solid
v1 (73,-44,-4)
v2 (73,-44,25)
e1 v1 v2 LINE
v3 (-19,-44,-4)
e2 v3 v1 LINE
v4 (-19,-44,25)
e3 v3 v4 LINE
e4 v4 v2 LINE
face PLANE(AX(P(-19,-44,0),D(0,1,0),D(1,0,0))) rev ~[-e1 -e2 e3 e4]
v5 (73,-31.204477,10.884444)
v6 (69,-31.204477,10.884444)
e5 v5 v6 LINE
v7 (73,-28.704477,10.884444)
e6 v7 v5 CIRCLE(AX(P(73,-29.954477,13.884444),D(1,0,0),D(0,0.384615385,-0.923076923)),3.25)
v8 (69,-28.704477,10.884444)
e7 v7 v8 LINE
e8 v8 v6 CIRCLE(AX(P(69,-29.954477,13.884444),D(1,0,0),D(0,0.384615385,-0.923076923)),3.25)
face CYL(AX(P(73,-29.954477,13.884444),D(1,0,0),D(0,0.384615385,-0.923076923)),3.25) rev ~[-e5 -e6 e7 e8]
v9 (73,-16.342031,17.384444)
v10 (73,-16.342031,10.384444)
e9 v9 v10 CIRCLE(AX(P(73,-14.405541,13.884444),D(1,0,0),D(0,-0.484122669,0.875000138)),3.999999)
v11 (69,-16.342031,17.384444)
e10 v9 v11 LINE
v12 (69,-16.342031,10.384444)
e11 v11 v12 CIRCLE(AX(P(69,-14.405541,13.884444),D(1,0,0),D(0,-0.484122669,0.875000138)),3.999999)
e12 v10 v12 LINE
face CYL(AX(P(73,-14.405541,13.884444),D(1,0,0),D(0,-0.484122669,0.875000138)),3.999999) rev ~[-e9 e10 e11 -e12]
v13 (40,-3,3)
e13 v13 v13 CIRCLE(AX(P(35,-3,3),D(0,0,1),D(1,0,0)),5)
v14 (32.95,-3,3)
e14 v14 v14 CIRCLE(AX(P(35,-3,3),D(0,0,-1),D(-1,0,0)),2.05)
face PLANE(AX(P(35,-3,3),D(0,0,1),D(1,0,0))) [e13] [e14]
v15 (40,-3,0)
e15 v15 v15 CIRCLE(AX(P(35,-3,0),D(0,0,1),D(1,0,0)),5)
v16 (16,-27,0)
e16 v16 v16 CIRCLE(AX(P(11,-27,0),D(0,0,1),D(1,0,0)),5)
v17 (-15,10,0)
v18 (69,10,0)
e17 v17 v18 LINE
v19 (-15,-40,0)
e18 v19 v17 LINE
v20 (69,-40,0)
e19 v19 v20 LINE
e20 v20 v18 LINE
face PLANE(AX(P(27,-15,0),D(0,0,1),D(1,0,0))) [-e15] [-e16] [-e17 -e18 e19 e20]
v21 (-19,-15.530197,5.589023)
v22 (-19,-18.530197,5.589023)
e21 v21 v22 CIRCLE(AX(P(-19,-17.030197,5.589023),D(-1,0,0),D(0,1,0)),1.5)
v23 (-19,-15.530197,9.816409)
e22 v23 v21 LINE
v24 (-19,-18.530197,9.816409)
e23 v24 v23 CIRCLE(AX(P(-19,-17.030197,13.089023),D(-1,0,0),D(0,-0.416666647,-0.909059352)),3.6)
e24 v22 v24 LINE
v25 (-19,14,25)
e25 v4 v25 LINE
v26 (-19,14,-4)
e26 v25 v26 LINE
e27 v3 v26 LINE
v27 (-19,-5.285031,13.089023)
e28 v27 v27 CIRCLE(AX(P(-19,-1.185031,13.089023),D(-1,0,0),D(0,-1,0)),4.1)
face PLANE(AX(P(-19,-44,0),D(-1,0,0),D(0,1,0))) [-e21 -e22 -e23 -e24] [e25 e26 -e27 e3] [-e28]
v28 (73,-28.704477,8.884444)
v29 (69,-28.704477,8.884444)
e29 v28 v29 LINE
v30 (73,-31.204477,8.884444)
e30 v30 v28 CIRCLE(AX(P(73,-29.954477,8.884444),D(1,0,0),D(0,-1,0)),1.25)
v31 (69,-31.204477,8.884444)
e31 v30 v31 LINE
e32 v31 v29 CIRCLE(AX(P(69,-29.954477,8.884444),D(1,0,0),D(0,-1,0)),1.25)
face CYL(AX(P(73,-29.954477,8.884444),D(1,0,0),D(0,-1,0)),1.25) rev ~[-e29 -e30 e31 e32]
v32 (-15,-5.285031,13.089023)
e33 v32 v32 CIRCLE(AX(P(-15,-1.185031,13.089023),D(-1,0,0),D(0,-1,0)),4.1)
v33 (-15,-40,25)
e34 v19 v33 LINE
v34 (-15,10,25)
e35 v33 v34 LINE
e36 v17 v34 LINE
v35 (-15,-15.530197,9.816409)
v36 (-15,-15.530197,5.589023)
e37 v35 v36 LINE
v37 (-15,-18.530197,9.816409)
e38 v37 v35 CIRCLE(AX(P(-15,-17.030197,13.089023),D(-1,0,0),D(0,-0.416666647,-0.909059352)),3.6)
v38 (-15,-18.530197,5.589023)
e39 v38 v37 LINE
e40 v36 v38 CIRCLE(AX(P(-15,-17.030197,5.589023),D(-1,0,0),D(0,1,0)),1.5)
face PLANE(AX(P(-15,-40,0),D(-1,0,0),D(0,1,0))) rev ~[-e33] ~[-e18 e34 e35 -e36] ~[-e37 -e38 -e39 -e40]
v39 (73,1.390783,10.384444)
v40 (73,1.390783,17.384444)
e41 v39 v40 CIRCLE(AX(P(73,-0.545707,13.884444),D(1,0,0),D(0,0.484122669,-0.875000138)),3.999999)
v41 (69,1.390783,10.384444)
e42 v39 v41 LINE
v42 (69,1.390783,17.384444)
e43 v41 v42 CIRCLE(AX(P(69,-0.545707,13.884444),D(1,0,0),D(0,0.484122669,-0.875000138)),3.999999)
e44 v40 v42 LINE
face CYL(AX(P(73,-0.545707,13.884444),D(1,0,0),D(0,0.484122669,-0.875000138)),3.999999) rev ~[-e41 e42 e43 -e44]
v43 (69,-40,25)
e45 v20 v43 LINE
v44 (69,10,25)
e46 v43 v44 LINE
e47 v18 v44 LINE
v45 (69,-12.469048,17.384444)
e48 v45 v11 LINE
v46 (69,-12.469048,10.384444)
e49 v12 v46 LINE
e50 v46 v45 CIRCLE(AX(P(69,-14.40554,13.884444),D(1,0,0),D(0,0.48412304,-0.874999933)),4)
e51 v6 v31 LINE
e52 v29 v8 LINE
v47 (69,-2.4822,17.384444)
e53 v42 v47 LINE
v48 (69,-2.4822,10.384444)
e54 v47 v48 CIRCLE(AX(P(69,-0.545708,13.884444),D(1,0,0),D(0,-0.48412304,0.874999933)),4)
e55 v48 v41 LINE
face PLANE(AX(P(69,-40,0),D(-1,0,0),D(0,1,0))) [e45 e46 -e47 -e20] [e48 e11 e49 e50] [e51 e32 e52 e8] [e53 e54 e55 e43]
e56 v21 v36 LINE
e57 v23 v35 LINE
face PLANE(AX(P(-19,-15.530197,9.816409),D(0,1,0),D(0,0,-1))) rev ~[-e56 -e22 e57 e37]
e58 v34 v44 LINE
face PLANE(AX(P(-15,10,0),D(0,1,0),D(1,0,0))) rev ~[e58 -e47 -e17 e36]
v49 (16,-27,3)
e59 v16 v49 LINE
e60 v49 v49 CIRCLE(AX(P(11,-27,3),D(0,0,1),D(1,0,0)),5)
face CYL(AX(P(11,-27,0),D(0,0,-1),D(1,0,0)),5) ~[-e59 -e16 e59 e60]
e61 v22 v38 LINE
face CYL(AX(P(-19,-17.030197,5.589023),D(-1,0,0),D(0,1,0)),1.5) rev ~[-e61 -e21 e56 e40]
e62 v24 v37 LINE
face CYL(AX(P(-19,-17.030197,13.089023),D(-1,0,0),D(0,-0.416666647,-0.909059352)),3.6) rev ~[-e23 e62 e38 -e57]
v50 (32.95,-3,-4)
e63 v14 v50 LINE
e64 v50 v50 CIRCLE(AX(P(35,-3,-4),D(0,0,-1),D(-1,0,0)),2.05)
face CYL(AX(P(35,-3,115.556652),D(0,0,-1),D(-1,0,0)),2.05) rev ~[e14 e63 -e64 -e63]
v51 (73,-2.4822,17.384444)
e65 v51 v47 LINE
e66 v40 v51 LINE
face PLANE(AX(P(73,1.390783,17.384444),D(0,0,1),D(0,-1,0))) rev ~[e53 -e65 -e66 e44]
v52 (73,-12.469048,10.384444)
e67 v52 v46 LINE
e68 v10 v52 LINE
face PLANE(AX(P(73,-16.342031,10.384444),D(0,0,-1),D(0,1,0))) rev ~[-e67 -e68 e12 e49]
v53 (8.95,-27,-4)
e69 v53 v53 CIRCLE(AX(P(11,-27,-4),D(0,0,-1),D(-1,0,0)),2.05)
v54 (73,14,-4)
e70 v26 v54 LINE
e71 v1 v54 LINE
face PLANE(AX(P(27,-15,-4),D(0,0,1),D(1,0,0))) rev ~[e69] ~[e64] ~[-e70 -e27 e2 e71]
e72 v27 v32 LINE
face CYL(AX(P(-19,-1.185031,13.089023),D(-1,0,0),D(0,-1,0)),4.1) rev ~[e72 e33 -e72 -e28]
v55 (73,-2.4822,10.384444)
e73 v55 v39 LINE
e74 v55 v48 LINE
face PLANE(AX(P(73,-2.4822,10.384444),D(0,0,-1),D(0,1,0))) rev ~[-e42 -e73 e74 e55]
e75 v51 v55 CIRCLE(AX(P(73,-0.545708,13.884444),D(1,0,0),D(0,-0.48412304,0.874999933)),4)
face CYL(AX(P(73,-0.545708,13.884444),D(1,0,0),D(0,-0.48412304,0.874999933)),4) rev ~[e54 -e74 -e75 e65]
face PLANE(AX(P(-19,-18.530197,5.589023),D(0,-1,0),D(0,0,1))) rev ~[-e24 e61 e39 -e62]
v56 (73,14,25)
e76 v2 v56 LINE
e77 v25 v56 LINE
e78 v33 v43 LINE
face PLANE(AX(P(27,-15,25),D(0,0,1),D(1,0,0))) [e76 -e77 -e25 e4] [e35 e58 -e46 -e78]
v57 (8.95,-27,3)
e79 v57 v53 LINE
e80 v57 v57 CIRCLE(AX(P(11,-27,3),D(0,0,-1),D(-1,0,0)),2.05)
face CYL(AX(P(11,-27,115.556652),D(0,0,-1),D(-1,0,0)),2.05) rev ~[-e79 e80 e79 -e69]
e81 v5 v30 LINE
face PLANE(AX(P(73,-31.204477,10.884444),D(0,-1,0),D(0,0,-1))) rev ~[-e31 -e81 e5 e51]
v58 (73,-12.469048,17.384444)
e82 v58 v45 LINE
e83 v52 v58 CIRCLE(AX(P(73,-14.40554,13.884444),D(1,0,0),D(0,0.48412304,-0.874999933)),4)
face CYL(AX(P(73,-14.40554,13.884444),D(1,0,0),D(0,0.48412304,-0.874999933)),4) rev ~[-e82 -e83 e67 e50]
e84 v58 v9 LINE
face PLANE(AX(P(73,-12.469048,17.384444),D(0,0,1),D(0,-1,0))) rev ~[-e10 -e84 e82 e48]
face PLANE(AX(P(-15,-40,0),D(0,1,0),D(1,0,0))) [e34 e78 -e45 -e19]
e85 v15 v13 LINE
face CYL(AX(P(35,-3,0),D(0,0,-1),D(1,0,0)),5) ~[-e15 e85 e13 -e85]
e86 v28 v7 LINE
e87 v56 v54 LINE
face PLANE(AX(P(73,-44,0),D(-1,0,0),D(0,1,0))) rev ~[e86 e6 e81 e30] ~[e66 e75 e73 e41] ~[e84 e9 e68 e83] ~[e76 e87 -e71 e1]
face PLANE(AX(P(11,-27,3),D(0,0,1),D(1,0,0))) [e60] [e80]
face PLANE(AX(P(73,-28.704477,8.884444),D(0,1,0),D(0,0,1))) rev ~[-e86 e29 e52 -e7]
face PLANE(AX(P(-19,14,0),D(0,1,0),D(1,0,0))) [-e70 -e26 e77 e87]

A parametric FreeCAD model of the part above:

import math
import FreeCAD as App
import Part
import Sketcher

V = App.Vector


def add_polygon(sketch, points):
    """Adds a closed chain of lines whose ends are joined by coincident constraints."""
    first, n = sketch.GeometryCount, len(points)
    for a, b in zip(points, points[1:] + points[:1]):
        sketch.addGeometry(Part.LineSegment(App.Vector(*a, 0), App.Vector(*b, 0)), False)
    for i in range(n):
        sketch.addConstraint(Sketcher.Constraint("Coincident", first + i, 2, first + (i + 1) % n, 1))

doc = App.newDocument("Part")
body = doc.addObject("PartDesign::Body", "Body")

sketch1 = body.newObject("Sketcher::SketchObject", "Sketch")
sketch1.AttachmentSupport = (doc.getObject("XY_Plane"), [""])
sketch1.MapMode = "FlatFace"
add_polygon(sketch1, [(-19, 14), (-19, -44), (73, -44), (73, 14)])
sketch1.addConstraint(Sketcher.Constraint("Vertical", 0))
sketch1.addConstraint(Sketcher.Constraint("Horizontal", 1))
sketch1.addConstraint(Sketcher.Constraint("Vertical", 2))
sketch1.addConstraint(Sketcher.Constraint("Horizontal", 3))
sketch1.addConstraint(Sketcher.Constraint("DistanceX", 1, 1, 1, 2, 92.0))
sketch1.addConstraint(Sketcher.Constraint("DistanceY", 0, 2, 0, 1, 58.0))
sketch1.addConstraint(Sketcher.Constraint("DistanceX", 0, 2, -1, 1, 19.0))
sketch1.addConstraint(Sketcher.Constraint("DistanceY", 0, 2, -1, 1, 44.0))
pad1 = body.newObject("PartDesign::Pad", "Pad")
pad1.Profile = sketch1
pad1.Length = 4
pad1.Reversed = True

sketch2 = body.newObject("Sketcher::SketchObject", "Sketch001")
sketch2.AttachmentSupport = (doc.getObject("XY_Plane"), [""])
sketch2.MapMode = "FlatFace"
add_polygon(sketch2, [(-19, 14), (-19, -44), (73, -44), (73, 14)])
add_polygon(sketch2, [(69, -40), (-15, -40), (-15, 10), (69, 10)])
sketch2.addConstraint(Sketcher.Constraint("Vertical", 0))
sketch2.addConstraint(Sketcher.Constraint("Horizontal", 1))
sketch2.addConstraint(Sketcher.Constraint("Vertical", 2))
sketch2.addConstraint(Sketcher.Constraint("Horizontal", 3))
sketch2.addConstraint(Sketcher.Constraint("Horizontal", 4))
sketch2.addConstraint(Sketcher.Constraint("Vertical", 5))
sketch2.addConstraint(Sketcher.Constraint("Horizontal", 6))
sketch2.addConstraint(Sketcher.Constraint("Vertical", 7))
sketch2.addConstraint(Sketcher.Constraint("DistanceX", 1, 1, 1, 2, 92.0))
sketch2.addConstraint(Sketcher.Constraint("DistanceX", 4, 2, 4, 1, 84.0))
sketch2.addConstraint(Sketcher.Constraint("DistanceY", 0, 2, 0, 1, 58.0))
sketch2.addConstraint(Sketcher.Constraint("DistanceY", 5, 1, 5, 2, 50.0))
sketch2.addConstraint(Sketcher.Constraint("DistanceX", 0, 2, -1, 1, 19.0))
sketch2.addConstraint(Sketcher.Constraint("DistanceY", 0, 2, -1, 1, 44.0))
sketch2.addConstraint(Sketcher.Constraint("DistanceX", 4, 2, -1, 1, 15.0))
sketch2.addConstraint(Sketcher.Constraint("DistanceY", 4, 2, -1, 1, 40.0))
pad2 = body.newObject("PartDesign::Pad", "Pad001")
pad2.Profile = sketch2
pad2.Length = 25

sketch3 = body.newObject("Sketcher::SketchObject", "Sketch002")
sketch3.AttachmentSupport = (doc.getObject("XY_Plane"), [""])
sketch3.MapMode = "FlatFace"
sketch3.addGeometry(Part.Circle(V(35, -3, 0), V(0, 0, 1), 5), False)
sketch3.addGeometry(Part.Circle(V(11, -27, 0), V(0, 0, 1), 5), False)
sketch3.addConstraint(Sketcher.Constraint("Equal", 0, 1))
sketch3.addConstraint(Sketcher.Constraint("Diameter", 0, 10.0))
sketch3.addConstraint(Sketcher.Constraint("DistanceX", -1, 1, 0, 3, 35.0))
sketch3.addConstraint(Sketcher.Constraint("DistanceY", 0, 3, -1, 1, 3.0))
sketch3.addConstraint(Sketcher.Constraint("DistanceX", -1, 1, 1, 3, 11.0))
sketch3.addConstraint(Sketcher.Constraint("DistanceY", 1, 3, -1, 1, 27.0))
pad3 = body.newObject("PartDesign::Pad", "Pad002")
pad3.Profile = sketch3
pad3.Length = 3

sketch4 = body.newObject("Sketcher::SketchObject", "Sketch003")
sketch4.AttachmentSupport = (doc.getObject("YZ_Plane"), [""])
sketch4.MapMode = "FlatFace"
sketch4.AttachmentOffset = App.Placement(V(0, 0, 73), App.Rotation())
sketch4.addGeometry(Part.LineSegment(V(-28.7, 8.9, 0), V(-28.7, 10.9, 0)), False)
sketch4.addGeometry(Part.ArcOfCircle(Part.Circle(V(-30, 13.9, 0), V(0, 0, 1), 3.2), math.radians(-67), math.radians(247)), False)
sketch4.addGeometry(Part.LineSegment(V(-31.2, 10.9, 0), V(-31.2, 8.9, 0)), False)
sketch4.addGeometry(Part.ArcOfCircle(Part.Circle(V(-30, 8.9, 0), V(0, 0, 1), 1.2), math.radians(180), math.radians(360)), False)
sketch4.addGeometry(Part.LineSegment(V(-12.5, 17.4, 0), V(-16.3, 17.4, 0)), False)
sketch4.addGeometry(Part.ArcOfCircle(Part.Circle(V(-14.4, 13.9, 0), V(0, 0, 1), 4), math.radians(119), math.radians(241)), False)
sketch4.addGeometry(Part.LineSegment(V(-16.3, 10.4, 0), V(-12.5, 10.4, 0)), False)
sketch4.addGeometry(Part.ArcOfCircle(Part.Circle(V(-14.4, 13.9, 0), V(0, 0, 1), 4), math.radians(-61), math.radians(61)), False)
sketch4.addGeometry(Part.LineSegment(V(-2.5, 10.4, 0), V(1.4, 10.4, 0)), False)
sketch4.addGeometry(Part.ArcOfCircle(Part.Circle(V(-0.5, 13.9, 0), V(0, 0, 1), 4), math.radians(-61), math.radians(61)), False)
sketch4.addGeometry(Part.LineSegment(V(1.4, 17.4, 0), V(-2.5, 17.4, 0)), False)
sketch4.addGeometry(Part.ArcOfCircle(Part.Circle(V(-0.5, 13.9, 0), V(0, 0, 1), 4), math.radians(119), math.radians(241)), False)
sketch4.addConstraint(Sketcher.Constraint("Coincident", 0, 2, 1, 1))
sketch4.addConstraint(Sketcher.Constraint("Coincident", 1, 2, 2, 1))
sketch4.addConstraint(Sketcher.Constraint("Tangent", 2, 2, 3, 1))
sketch4.addConstraint(Sketcher.Constraint("Tangent", 3, 2, 0, 1))
sketch4.addConstraint(Sketcher.Constraint("Coincident", 4, 2, 5, 1))
sketch4.addConstraint(Sketcher.Constraint("Coincident", 5, 2, 6, 1))
sketch4.addConstraint(Sketcher.Constraint("Coincident", 6, 2, 7, 1))
sketch4.addConstraint(Sketcher.Constraint("Coincident", 7, 2, 4, 1))
sketch4.addConstraint(Sketcher.Constraint("Coincident", 8, 2, 9, 1))
sketch4.addConstraint(Sketcher.Constraint("Coincident", 9, 2, 10, 1))
sketch4.addConstraint(Sketcher.Constraint("Coincident", 10, 2, 11, 1))
sketch4.addConstraint(Sketcher.Constraint("Coincident", 11, 2, 8, 1))
sketch4.addConstraint(Sketcher.Constraint("Vertical", 0))
sketch4.addConstraint(Sketcher.Constraint("Vertical", 2))
sketch4.addConstraint(Sketcher.Constraint("Horizontal", 4))
sketch4.addConstraint(Sketcher.Constraint("Horizontal", 6))
sketch4.addConstraint(Sketcher.Constraint("Horizontal", 8))
sketch4.addConstraint(Sketcher.Constraint("Horizontal", 10))
sketch4.addConstraint(Sketcher.Constraint("Coincident", 7, 3, 5, 3))
sketch4.addConstraint(Sketcher.Constraint("Coincident", 11, 3, 9, 3))
sketch4.addConstraint(Sketcher.Constraint("Equal", 5, 7))
sketch4.addConstraint(Sketcher.Constraint("Equal", 7, 9))
sketch4.addConstraint(Sketcher.Constraint("Equal", 9, 11))
sketch4.addConstraint(Sketcher.Constraint("Horizontal", 1, 3, 5, 3))
sketch4.addConstraint(Sketcher.Constraint("Horizontal", 7, 3, 9, 3))
sketch4.addConstraint(Sketcher.Constraint("Horizontal", 0, 2, 1, 2))
sketch4.addConstraint(Sketcher.Constraint("Horizontal", 6, 2, 8, 2))
sketch4.addConstraint(Sketcher.Constraint("Horizontal", 7, 2, 9, 2))
sketch4.addConstraint(Sketcher.Constraint("Vertical", 4, 2, 5, 2))
sketch4.addConstraint(Sketcher.Constraint("Radius", 5, 3.999999))
sketch4.addConstraint(Sketcher.Constraint("DistanceY", 0, 1, 0, 2, 2.0))
sketch4.addConstraint(Sketcher.Constraint("Radius", 1, 3.25))
sketch4.addConstraint(Sketcher.Constraint("Radius", 3, 1.25))
sketch4.addConstraint(Sketcher.Constraint("DistanceY", 5, 2, 4, 2, 7.0))
sketch4.addConstraint(Sketcher.Constraint("DistanceX", 10, 2, -1, 1, 2.4822))
sketch4.addConstraint(Sketcher.Constraint("DistanceX", 5, 3, -1, 1, 14.405541))
sketch4.addConstraint(Sketcher.Constraint("DistanceX", 1, 3, 9, 3, 29.40877))
sketch4.addConstraint(Sketcher.Constraint("DistanceY", -1, 1, 1, 3, 13.884444))
pocket1 = body.newObject("PartDesign::Pocket", "Pocket")
pocket1.Profile = sketch4
pocket1.Length = 4

sketch5 = body.newObject("Sketcher::SketchObject", "Sketch004")
sketch5.AttachmentSupport = (doc.getObject("YZ_Plane"), [""])
sketch5.MapMode = "FlatFace"
sketch5.AttachmentOffset = App.Placement(V(0, 0, -19), App.Rotation())
sketch5.addGeometry(Part.Circle(V(-1.2, 13.1, 0), V(0, 0, 1), 4.1), False)
sketch5.addGeometry(Part.LineSegment(V(-18.5, 5.6, 0), V(-18.5, 9.8, 0)), False)
sketch5.addGeometry(Part.ArcOfCircle(Part.Circle(V(-17, 13.1, 0), V(0, 0, 1), 3.6), math.radians(-65), math.radians(245)), False)
sketch5.addGeometry(Part.LineSegment(V(-15.5, 9.8, 0), V(-15.5, 5.6, 0)), False)
sketch5.addGeometry(Part.ArcOfCircle(Part.Circle(V(-17, 5.6, 0), V(0, 0, 1), 1.5), math.radians(180), math.radians(360)), False)
sketch5.addConstraint(Sketcher.Constraint("Coincident", 1, 2, 2, 2))
sketch5.addConstraint(Sketcher.Constraint("Coincident", 2, 1, 3, 1))
sketch5.addConstraint(Sketcher.Constraint("Tangent", 3, 2, 4, 2))
sketch5.addConstraint(Sketcher.Constraint("Tangent", 4, 1, 1, 1))
sketch5.addConstraint(Sketcher.Constraint("Vertical", 1))
sketch5.addConstraint(Sketcher.Constraint("Vertical", 3))
sketch5.addConstraint(Sketcher.Constraint("Horizontal", 0, 3, 2, 3))
sketch5.addConstraint(Sketcher.Constraint("Horizontal", 1, 2, 2, 1))
sketch5.addConstraint(Sketcher.Constraint("Diameter", 0, 8.2))
sketch5.addConstraint(Sketcher.Constraint("Radius", 2, 3.6))
sketch5.addConstraint(Sketcher.Constraint("Radius", 4, 1.5))
sketch5.addConstraint(Sketcher.Constraint("DistanceY", 4, 3, 2, 3, 7.5))
sketch5.addConstraint(Sketcher.Constraint("DistanceX", 0, 3, -1, 1, 1.185031))
sketch5.addConstraint(Sketcher.Constraint("DistanceY", -1, 1, 1, 2, 9.816409))
sketch5.addConstraint(Sketcher.Constraint("DistanceX", 2, 3, -1, 1, 17.030197))
pocket2 = body.newObject("PartDesign::Pocket", "Pocket001")
pocket2.Profile = sketch5
pocket2.Length = 4
pocket2.Reversed = True

sketch6 = body.newObject("Sketcher::SketchObject", "Sketch005")
sketch6.AttachmentSupport = (doc.getObject("XY_Plane"), [""])
sketch6.MapMode = "FlatFace"
sketch6.AttachmentOffset = App.Placement(V(0, 0, 3), App.Rotation())
sketch6.addGeometry(Part.Circle(V(35, -3, 0), V(0, 0, 1), 2), False)
sketch6.addGeometry(Part.Circle(V(11, -27, 0), V(0, 0, 1), 2), False)
sketch6.addConstraint(Sketcher.Constraint("Equal", 0, 1))
sketch6.addConstraint(Sketcher.Constraint("Diameter", 0, 4.1))
sketch6.addConstraint(Sketcher.Constraint("DistanceX", -1, 1, 0, 3, 35.0))
sketch6.addConstraint(Sketcher.Constraint("DistanceY", 0, 3, -1, 1, 3.0))
sketch6.addConstraint(Sketcher.Constraint("DistanceX", -1, 1, 1, 3, 11.0))
sketch6.addConstraint(Sketcher.Constraint("DistanceY", 1, 3, -1, 1, 27.0))
doc.recompute()
hole = body.newObject("PartDesign::Hole", "Hole")
hole.Profile = sketch6
hole.ThreadType = "None"
hole.Diameter = 4.1
hole.DepthType = "ThroughAll"

doc.recompute()
